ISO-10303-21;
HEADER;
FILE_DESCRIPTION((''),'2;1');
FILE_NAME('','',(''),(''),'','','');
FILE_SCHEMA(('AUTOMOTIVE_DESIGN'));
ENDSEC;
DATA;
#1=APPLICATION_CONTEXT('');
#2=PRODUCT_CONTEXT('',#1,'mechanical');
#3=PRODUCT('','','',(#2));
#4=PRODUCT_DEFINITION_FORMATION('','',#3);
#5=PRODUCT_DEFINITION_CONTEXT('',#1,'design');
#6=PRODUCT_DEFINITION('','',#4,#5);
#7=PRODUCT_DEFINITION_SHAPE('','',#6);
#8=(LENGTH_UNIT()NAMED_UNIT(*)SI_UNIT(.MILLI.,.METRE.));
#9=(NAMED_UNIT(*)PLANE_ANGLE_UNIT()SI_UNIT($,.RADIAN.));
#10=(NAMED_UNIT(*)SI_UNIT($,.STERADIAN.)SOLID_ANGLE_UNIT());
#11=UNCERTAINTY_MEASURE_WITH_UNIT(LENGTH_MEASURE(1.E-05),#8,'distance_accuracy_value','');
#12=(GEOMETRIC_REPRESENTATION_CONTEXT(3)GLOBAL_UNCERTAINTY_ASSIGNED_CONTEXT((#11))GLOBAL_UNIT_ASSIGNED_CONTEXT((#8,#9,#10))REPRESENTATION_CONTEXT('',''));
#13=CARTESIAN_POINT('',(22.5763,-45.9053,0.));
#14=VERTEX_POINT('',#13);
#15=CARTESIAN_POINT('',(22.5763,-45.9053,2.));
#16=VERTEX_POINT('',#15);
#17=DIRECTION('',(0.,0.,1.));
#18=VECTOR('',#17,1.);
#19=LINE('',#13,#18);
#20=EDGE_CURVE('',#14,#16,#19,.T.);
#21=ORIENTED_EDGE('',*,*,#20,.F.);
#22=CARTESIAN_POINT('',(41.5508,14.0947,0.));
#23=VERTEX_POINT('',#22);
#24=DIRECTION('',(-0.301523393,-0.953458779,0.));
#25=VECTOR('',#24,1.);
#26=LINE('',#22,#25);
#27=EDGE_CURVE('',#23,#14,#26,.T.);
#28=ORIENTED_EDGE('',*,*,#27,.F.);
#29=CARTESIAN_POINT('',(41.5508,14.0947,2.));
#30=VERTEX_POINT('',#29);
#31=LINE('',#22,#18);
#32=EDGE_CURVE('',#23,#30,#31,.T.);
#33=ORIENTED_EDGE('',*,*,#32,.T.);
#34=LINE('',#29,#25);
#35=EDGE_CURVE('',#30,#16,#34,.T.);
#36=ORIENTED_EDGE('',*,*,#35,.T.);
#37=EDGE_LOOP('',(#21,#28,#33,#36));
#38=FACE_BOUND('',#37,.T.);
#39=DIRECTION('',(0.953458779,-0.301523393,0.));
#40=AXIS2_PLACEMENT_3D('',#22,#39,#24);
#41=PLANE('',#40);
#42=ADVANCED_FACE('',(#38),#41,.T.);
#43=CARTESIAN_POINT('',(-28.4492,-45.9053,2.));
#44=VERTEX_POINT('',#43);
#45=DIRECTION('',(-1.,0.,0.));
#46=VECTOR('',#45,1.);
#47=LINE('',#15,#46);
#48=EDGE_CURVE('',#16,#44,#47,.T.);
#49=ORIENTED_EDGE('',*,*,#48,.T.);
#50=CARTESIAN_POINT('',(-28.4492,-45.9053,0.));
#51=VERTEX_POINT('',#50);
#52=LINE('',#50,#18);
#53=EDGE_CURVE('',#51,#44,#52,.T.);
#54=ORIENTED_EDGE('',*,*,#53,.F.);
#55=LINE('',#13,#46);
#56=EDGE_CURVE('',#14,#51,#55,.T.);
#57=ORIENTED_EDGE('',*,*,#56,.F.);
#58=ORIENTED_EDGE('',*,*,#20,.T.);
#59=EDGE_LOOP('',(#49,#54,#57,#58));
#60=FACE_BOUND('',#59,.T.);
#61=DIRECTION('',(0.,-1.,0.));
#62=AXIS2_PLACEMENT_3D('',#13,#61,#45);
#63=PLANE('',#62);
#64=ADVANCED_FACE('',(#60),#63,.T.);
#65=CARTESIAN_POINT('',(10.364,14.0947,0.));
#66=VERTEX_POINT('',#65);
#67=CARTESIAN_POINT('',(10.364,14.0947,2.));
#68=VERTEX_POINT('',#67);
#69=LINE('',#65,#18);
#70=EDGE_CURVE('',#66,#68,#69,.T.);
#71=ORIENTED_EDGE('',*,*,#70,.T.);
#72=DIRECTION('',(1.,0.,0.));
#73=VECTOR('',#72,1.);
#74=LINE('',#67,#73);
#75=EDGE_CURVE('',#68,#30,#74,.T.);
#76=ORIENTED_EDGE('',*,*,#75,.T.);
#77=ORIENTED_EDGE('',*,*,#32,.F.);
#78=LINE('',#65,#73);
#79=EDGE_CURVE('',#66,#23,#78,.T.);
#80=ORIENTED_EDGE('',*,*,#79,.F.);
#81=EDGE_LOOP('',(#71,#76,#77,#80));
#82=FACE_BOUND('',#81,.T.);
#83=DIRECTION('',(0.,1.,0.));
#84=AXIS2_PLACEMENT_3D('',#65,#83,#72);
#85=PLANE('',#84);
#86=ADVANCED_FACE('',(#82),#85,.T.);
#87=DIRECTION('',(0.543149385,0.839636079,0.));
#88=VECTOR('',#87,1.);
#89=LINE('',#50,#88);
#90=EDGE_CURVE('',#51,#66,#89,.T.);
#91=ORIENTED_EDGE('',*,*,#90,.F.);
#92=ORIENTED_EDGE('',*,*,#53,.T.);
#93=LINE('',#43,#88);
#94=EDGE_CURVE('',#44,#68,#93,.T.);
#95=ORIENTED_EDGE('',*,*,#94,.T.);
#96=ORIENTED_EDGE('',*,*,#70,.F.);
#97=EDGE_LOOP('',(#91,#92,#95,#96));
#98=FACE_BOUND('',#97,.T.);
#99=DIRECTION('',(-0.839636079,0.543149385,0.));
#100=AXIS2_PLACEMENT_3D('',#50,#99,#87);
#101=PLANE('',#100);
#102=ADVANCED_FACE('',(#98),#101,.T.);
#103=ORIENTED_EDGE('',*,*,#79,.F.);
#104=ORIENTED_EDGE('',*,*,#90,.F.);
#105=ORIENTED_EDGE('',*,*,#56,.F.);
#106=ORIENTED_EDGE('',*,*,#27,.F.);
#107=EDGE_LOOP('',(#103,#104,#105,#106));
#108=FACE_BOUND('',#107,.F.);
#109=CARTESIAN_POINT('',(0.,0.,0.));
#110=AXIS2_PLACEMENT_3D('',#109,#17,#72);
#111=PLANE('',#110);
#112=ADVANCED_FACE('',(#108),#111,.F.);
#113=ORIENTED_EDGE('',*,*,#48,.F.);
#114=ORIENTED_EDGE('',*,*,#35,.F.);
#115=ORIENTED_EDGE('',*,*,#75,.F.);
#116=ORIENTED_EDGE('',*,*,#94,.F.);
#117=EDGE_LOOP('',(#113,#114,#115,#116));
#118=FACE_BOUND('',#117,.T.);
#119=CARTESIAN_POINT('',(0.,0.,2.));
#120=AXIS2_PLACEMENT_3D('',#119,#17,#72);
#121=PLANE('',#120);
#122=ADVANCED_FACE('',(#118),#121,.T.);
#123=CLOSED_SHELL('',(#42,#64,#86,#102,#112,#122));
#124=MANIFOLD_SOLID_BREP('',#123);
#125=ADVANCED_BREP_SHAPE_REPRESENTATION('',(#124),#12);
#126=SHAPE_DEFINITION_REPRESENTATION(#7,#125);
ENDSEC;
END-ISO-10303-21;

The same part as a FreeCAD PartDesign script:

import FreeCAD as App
import Part
import Sketcher

V = App.Vector
Q = App.Units.Quantity

doc = App.newDocument("Part")
params = doc.addObject("Spreadsheet::Sheet", "Params")
for row, (alias, value) in enumerate([
    ("pad1_length", "2 mm"),
], start=1):
    params.set(f"A{row}", alias)
    params.set(f"B{row}", "=" + value)
    params.setAlias(f"B{row}", alias)

body = doc.addObject("PartDesign::Body", "Body")

sketch1 = doc.addObject("Sketcher::SketchObject", "Sketch")
body.addObject(sketch1)
sketch1.AttachmentSupport = (doc.XY_Plane, [""])
sketch1.MapMode = "FlatFace"
sketch1.addGeometry(Part.LineSegment(V(42, 14, 0), V(10, 14, 0)), False)
sketch1.addGeometry(Part.LineSegment(V(10, 14, 0), V(-28, -46, 0)), False)
sketch1.addGeometry(Part.LineSegment(V(-28, -46, 0), V(23, -46, 0)), False)
sketch1.addGeometry(Part.LineSegment(V(23, -46, 0), V(42, 14, 0)), False)
sketch1.addConstraint(Sketcher.Constraint("Coincident", 0, 2, 1, 1))
sketch1.addConstraint(Sketcher.Constraint("Coincident", 1, 2, 2, 1))
sketch1.addConstraint(Sketcher.Constraint("Coincident", 2, 2, 3, 1))
sketch1.addConstraint(Sketcher.Constraint("Coincident", 3, 2, 0, 1))
sketch1.addConstraint(Sketcher.Constraint("Horizontal", 0))
sketch1.addConstraint(Sketcher.Constraint("Horizontal", 2))
sketch1.addConstraint(Sketcher.Constraint("DistanceY", 1, 2, 0, 2, 60.0))
sketch1.addConstraint(Sketcher.Constraint("DistanceX", 1, 2, 3, 2, 70.0))
sketch1.addConstraint(Sketcher.Constraint("Angle", 3, Q("72.4509 deg")))
sketch1.addConstraint(Sketcher.Constraint("DistanceX", 0, 2, 0, 1, 31.1868))
sketch1.addConstraint(Sketcher.Constraint("DistanceX", -1, 1, 0, 2, 10.364))
sketch1.addConstraint(Sketcher.Constraint("DistanceY", -1, 1, 0, 2, 14.0947))
pad1 = doc.addObject("PartDesign::Pad", "Pad")
body.addObject(pad1)
pad1.Profile = sketch1
pad1.setExpression("Length", "Params.pad1_length")

doc.recompute()
